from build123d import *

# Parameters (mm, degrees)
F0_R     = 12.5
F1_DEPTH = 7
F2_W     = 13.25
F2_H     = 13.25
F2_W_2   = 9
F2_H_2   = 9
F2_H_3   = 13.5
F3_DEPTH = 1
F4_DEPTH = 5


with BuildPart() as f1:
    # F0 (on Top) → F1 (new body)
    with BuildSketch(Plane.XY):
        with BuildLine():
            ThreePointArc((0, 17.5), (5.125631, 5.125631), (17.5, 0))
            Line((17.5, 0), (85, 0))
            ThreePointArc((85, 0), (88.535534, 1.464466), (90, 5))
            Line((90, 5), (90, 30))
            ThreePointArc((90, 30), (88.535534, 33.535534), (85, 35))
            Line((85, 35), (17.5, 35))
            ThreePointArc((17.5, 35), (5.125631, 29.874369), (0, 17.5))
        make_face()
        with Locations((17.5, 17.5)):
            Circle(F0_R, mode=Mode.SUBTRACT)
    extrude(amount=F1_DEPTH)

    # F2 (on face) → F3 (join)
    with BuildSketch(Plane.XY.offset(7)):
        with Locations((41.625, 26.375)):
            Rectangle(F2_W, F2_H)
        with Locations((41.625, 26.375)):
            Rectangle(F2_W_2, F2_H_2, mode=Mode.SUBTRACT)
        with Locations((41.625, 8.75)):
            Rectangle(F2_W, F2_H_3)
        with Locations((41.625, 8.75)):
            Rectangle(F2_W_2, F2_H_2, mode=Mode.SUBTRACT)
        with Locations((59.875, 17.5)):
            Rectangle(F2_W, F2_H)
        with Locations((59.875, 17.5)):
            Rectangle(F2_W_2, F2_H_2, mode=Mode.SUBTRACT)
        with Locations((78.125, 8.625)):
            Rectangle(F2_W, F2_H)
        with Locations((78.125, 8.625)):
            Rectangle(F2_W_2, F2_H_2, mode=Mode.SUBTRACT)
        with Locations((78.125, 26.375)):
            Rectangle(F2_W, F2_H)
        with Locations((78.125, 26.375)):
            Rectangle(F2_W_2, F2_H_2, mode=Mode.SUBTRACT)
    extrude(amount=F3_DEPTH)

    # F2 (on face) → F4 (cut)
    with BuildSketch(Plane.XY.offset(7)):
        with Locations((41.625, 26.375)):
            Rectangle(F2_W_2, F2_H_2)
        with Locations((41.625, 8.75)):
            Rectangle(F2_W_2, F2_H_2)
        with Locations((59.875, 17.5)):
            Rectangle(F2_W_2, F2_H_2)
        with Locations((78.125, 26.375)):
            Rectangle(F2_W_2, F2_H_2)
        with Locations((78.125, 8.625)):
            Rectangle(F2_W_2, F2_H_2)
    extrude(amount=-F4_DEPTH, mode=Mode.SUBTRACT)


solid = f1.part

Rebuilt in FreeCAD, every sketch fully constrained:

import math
import FreeCAD as App
import Part
import Sketcher
from FreeCAD import Vector
Q = App.Units.Quantity

doc = App.newDocument("Part")
params = doc.addObject("Spreadsheet::Sheet", "Params")
for row, (alias, value) in enumerate([
    ("sketch1_diameter", "25 mm"),
    ("sketch1_radius", "5 mm"),
    ("sketch1_radius2", "17.499999 mm"),
    ("sketch1_width", "67.5 mm"),
    ("pad1_length", "7 mm"),
    ("sketch2_width", "9 mm"),
    ("sketch2_height", "13.5 mm"),
    ("sketch2_width2", "13.25 mm"),
    ("pad2_length", "1 mm"),
    ("sketch3_width", "9 mm"),
    ("pocket1_length", "5 mm"),
], start=1):
    params.set(f"A{row}", alias)
    params.set(f"B{row}", "=" + value)
    params.setAlias(f"B{row}", alias)

body = doc.addObject("PartDesign::Body", "Body")

# Sketch on XY plane
sketch1 = body.newObject("Sketcher::SketchObject", "Sketch")
sketch1.AttachmentSupport = (doc.getObject("XY_Plane"), [""])
sketch1.MapMode = "FlatFace"
sketch1.addGeometry(Part.ArcOfCircle(Part.Circle(Vector(17.499999, 17.499999, 0), Vector(0, 0, 1), 17.499999), math.radians(179.999996), math.radians(270.000004)), False)
sketch1.addGeometry(Part.LineSegment(Vector(17.5, 0, 0), Vector(85, 0, 0)), False)
sketch1.addGeometry(Part.ArcOfCircle(Part.Circle(Vector(85, 5, 0), Vector(0, 0, 1), 5), math.radians(-90.000004), math.radians(0.000004)), False)
sketch1.addGeometry(Part.LineSegment(Vector(90, 5, 0), Vector(90, 30, 0)), False)
sketch1.addGeometry(Part.ArcOfCircle(Part.Circle(Vector(85, 30, 0), Vector(0, 0, 1), 5), math.radians(-0.000004), math.radians(90.000004)), False)
sketch1.addGeometry(Part.LineSegment(Vector(85, 35, 0), Vector(17.5, 35, 0)), False)
sketch1.addGeometry(Part.ArcOfCircle(Part.Circle(Vector(17.499999, 17.500001, 0), Vector(0, 0, 1), 17.499999), math.radians(89.999996), math.radians(180.000004)), False)
sketch1.addGeometry(Part.Circle(Vector(17.5, 17.5, 0), Vector(0, 0, 1), 12.5), False)
sketch1.addConstraint(Sketcher.Constraint("Tangent", 0, 2, 1, 1))
sketch1.addConstraint(Sketcher.Constraint("Tangent", 1, 2, 2, 1))
sketch1.addConstraint(Sketcher.Constraint("Tangent", 2, 2, 3, 1))
sketch1.addConstraint(Sketcher.Constraint("Tangent", 3, 2, 4, 1))
sketch1.addConstraint(Sketcher.Constraint("Tangent", 4, 2, 5, 1))
sketch1.addConstraint(Sketcher.Constraint("Tangent", 5, 2, 6, 1))
sketch1.addConstraint(Sketcher.Constraint("Tangent", 6, 2, 0, 1))
sketch1.addConstraint(Sketcher.Constraint("Horizontal", 1))
sketch1.addConstraint(Sketcher.Constraint("Vertical", 3))
sketch1.addConstraint(Sketcher.Constraint("Horizontal", 5))
sketch1.addConstraint(Sketcher.Constraint("Coincident", 7, 3, 0, 3))
sketch1.addConstraint(Sketcher.Constraint("Equal", 2, 4))
sketch1.addConstraint(Sketcher.Constraint("Equal", 0, 6))
sketch1.addConstraint(Sketcher.Constraint("PointOnObject", 0, 2, -1))
sketch1.addConstraint(Sketcher.Constraint("PointOnObject", 6, 2, -2))
sketch1.addConstraint(Sketcher.Constraint("Horizontal", 7, 3, 6, 2))
sketch1.addConstraint(Sketcher.Constraint("Diameter", 7, Q("25 mm")))
sketch1.addConstraint(Sketcher.Constraint("Radius", 2, Q("5 mm")))
sketch1.addConstraint(Sketcher.Constraint("Radius", 0, Q("17.499999 mm")))
sketch1.addConstraint(Sketcher.Constraint("DistanceX", 1, 1, 1, 2, Q("67.5 mm")))
sketch1.setExpression("Constraints[16]", "Params.sketch1_diameter")
sketch1.setExpression("Constraints[17]", "Params.sketch1_radius")
sketch1.setExpression("Constraints[18]", "Params.sketch1_radius2")
sketch1.setExpression("Constraints[19]", "Params.sketch1_width")
pad1 = body.newObject("PartDesign::Pad", "Pad")
pad1.Profile = sketch1
pad1.setExpression("Length", "Params.pad1_length")

# Sketch on XY plane
sketch2 = body.newObject("Sketcher::SketchObject", "Sketch001")
sketch2.AttachmentSupport = (doc.getObject("XY_Plane"), [""])
sketch2.MapMode = "FlatFace"
sketch2.AttachmentOffset = App.Placement(Vector(0, 0, 7), App.Rotation())
sketch2.addGeometry(Part.LineSegment(Vector(35, 33, 0), Vector(35, 19.75, 0)), False)
sketch2.addGeometry(Part.LineSegment(Vector(35, 19.75, 0), Vector(48.25, 19.75, 0)), False)
sketch2.addGeometry(Part.LineSegment(Vector(48.25, 19.75, 0), Vector(48.25, 33, 0)), False)
sketch2.addGeometry(Part.LineSegment(Vector(48.25, 33, 0), Vector(35, 33, 0)), False)
sketch2.addGeometry(Part.LineSegment(Vector(46.125, 21.875, 0), Vector(37.125, 21.875, 0)), False)
sketch2.addGeometry(Part.LineSegment(Vector(37.125, 21.875, 0), Vector(37.125, 30.875, 0)), False)
sketch2.addGeometry(Part.LineSegment(Vector(37.125, 30.875, 0), Vector(46.125, 30.875, 0)), False)
sketch2.addGeometry(Part.LineSegment(Vector(46.125, 30.875, 0), Vector(46.125, 21.875, 0)), False)
sketch2.addGeometry(Part.LineSegment(Vector(35, 15.5, 0), Vector(35, 2, 0)), False)
sketch2.addGeometry(Part.LineSegment(Vector(35, 2, 0), Vector(48.25, 2, 0)), False)
sketch2.addGeometry(Part.LineSegment(Vector(48.25, 2, 0), Vector(48.25, 15.5, 0)), False)
sketch2.addGeometry(Part.LineSegment(Vector(48.25, 15.5, 0), Vector(35, 15.5, 0)), False)
sketch2.addGeometry(Part.LineSegment(Vector(46.125, 4.25, 0), Vector(37.125, 4.25, 0)), False)
sketch2.addGeometry(Part.LineSegment(Vector(37.125, 4.25, 0), Vector(37.125, 13.25, 0)), False)
sketch2.addGeometry(Part.LineSegment(Vector(37.125, 13.25, 0), Vector(46.125, 13.25, 0)), False)
sketch2.addGeometry(Part.LineSegment(Vector(46.125, 13.25, 0), Vector(46.125, 4.25, 0)), False)
sketch2.addGeometry(Part.LineSegment(Vector(53.25, 24.125, 0), Vector(53.25, 10.875, 0)), False)
sketch2.addGeometry(Part.LineSegment(Vector(53.25, 10.875, 0), Vector(66.5, 10.875, 0)), False)
sketch2.addGeometry(Part.LineSegment(Vector(66.5, 10.875, 0), Vector(66.5, 24.125, 0)), False)
sketch2.addGeometry(Part.LineSegment(Vector(66.5, 24.125, 0), Vector(53.25, 24.125, 0)), False)
sketch2.addGeometry(Part.LineSegment(Vector(64.375, 13, 0), Vector(55.375, 13, 0)), False)
sketch2.addGeometry(Part.LineSegment(Vector(55.375, 13, 0), Vector(55.375, 22, 0)), False)
sketch2.addGeometry(Part.LineSegment(Vector(55.375, 22, 0), Vector(64.375, 22, 0)), False)
sketch2.addGeometry(Part.LineSegment(Vector(64.375, 22, 0), Vector(64.375, 13, 0)), False)
sketch2.addGeometry(Part.LineSegment(Vector(71.5, 15.25, 0), Vector(71.5, 2, 0)), False)
sketch2.addGeometry(Part.LineSegment(Vector(71.5, 2, 0), Vector(84.75, 2, 0)), False)
sketch2.addGeometry(Part.LineSegment(Vector(84.75, 2, 0), Vector(84.75, 15.25, 0)), False)
sketch2.addGeometry(Part.LineSegment(Vector(84.75, 15.25, 0), Vector(71.5, 15.25, 0)), False)
sketch2.addGeometry(Part.LineSegment(Vector(82.625, 4.125, 0), Vector(73.625, 4.125, 0)), False)
sketch2.addGeometry(Part.LineSegment(Vector(73.625, 4.125, 0), Vector(73.625, 13.125, 0)), False)
sketch2.addGeometry(Part.LineSegment(Vector(73.625, 13.125, 0), Vector(82.625, 13.125, 0)), False)
sketch2.addGeometry(Part.LineSegment(Vector(82.625, 13.125, 0), Vector(82.625, 4.125, 0)), False)
sketch2.addGeometry(Part.LineSegment(Vector(71.5, 33, 0), Vector(71.5, 19.75, 0)), False)
sketch2.addGeometry(Part.LineSegment(Vector(71.5, 19.75, 0), Vector(84.75, 19.75, 0)), False)
sketch2.addGeometry(Part.LineSegment(Vector(84.75, 19.75, 0), Vector(84.75, 33, 0)), False)
sketch2.addGeometry(Part.LineSegment(Vector(84.75, 33, 0), Vector(71.5, 33, 0)), False)
sketch2.addGeometry(Part.LineSegment(Vector(82.625, 21.875, 0), Vector(73.625, 21.875, 0)), False)
sketch2.addGeometry(Part.LineSegment(Vector(73.625, 21.875, 0), Vector(73.625, 30.875, 0)), False)
sketch2.addGeometry(Part.LineSegment(Vector(73.625, 30.875, 0), Vector(82.625, 30.875, 0)), False)
sketch2.addGeometry(Part.LineSegment(Vector(82.625, 30.875, 0), Vector(82.625, 21.875, 0)), False)
sketch2.addConstraint(Sketcher.Constraint("Coincident", 0, 2, 1, 1))
sketch2.addConstraint(Sketcher.Constraint("Coincident", 1, 2, 2, 1))
sketch2.addConstraint(Sketcher.Constraint("Coincident", 2, 2, 3, 1))
sketch2.addConstraint(Sketcher.Constraint("Coincident", 3, 2, 0, 1))
sketch2.addConstraint(Sketcher.Constraint("Coincident", 4, 2, 5, 1))
sketch2.addConstraint(Sketcher.Constraint("Coincident", 5, 2, 6, 1))
sketch2.addConstraint(Sketcher.Constraint("Coincident", 6, 2, 7, 1))
sketch2.addConstraint(Sketcher.Constraint("Coincident", 7, 2, 4, 1))
sketch2.addConstraint(Sketcher.Constraint("Coincident", 8, 2, 9, 1))
sketch2.addConstraint(Sketcher.Constraint("Coincident", 9, 2, 10, 1))
sketch2.addConstraint(Sketcher.Constraint("Coincident", 10, 2, 11, 1))
sketch2.addConstraint(Sketcher.Constraint("Coincident", 11, 2, 8, 1))
sketch2.addConstraint(Sketcher.Constraint("Coincident", 12, 2, 13, 1))
sketch2.addConstraint(Sketcher.Constraint("Coincident", 13, 2, 14, 1))
sketch2.addConstraint(Sketcher.Constraint("Coincident", 14, 2, 15, 1))
sketch2.addConstraint(Sketcher.Constraint("Coincident", 15, 2, 12, 1))
sketch2.addConstraint(Sketcher.Constraint("Coincident", 16, 2, 17, 1))
sketch2.addConstraint(Sketcher.Constraint("Coincident", 17, 2, 18, 1))
sketch2.addConstraint(Sketcher.Constraint("Coincident", 18, 2, 19, 1))
sketch2.addConstraint(Sketcher.Constraint("Coincident", 19, 2, 16, 1))
sketch2.addConstraint(Sketcher.Constraint("Coincident", 20, 2, 21, 1))
sketch2.addConstraint(Sketcher.Constraint("Coincident", 21, 2, 22, 1))
sketch2.addConstraint(Sketcher.Constraint("Coincident", 22, 2, 23, 1))
sketch2.addConstraint(Sketcher.Constraint("Coincident", 23, 2, 20, 1))
sketch2.addConstraint(Sketcher.Constraint("Coincident", 24, 2, 25, 1))
sketch2.addConstraint(Sketcher.Constraint("Coincident", 25, 2, 26, 1))
sketch2.addConstraint(Sketcher.Constraint("Coincident", 26, 2, 27, 1))
sketch2.addConstraint(Sketcher.Constraint("Coincident", 27, 2, 24, 1))
sketch2.addConstraint(Sketcher.Constraint("Coincident", 28, 2, 29, 1))
sketch2.addConstraint(Sketcher.Constraint("Coincident", 29, 2, 30, 1))
sketch2.addConstraint(Sketcher.Constraint("Coincident", 30, 2, 31, 1))
sketch2.addConstraint(Sketcher.Constraint("Coincident", 31, 2, 28, 1))
sketch2.addConstraint(Sketcher.Constraint("Coincident", 32, 2, 33, 1))
sketch2.addConstraint(Sketcher.Constraint("Coincident", 33, 2, 34, 1))
sketch2.addConstraint(Sketcher.Constraint("Coincident", 34, 2, 35, 1))
sketch2.addConstraint(Sketcher.Constraint("Coincident", 35, 2, 32, 1))
sketch2.addConstraint(Sketcher.Constraint("Coincident", 36, 2, 37, 1))
sketch2.addConstraint(Sketcher.Constraint("Coincident", 37, 2, 38, 1))
sketch2.addConstraint(Sketcher.Constraint("Coincident", 38, 2, 39, 1))
sketch2.addConstraint(Sketcher.Constraint("Coincident", 39, 2, 36, 1))
sketch2.addConstraint(Sketcher.Constraint("Vertical", 0))
sketch2.addConstraint(Sketcher.Constraint("Horizontal", 1))
sketch2.addConstraint(Sketcher.Constraint("Vertical", 2))
sketch2.addConstraint(Sketcher.Constraint("Horizontal", 3))
sketch2.addConstraint(Sketcher.Constraint("Horizontal", 4))
sketch2.addConstraint(Sketcher.Constraint("Vertical", 5))
sketch2.addConstraint(Sketcher.Constraint("Horizontal", 6))
sketch2.addConstraint(Sketcher.Constraint("Vertical", 7))
sketch2.addConstraint(Sketcher.Constraint("Vertical", 8))
sketch2.addConstraint(Sketcher.Constraint("Horizontal", 9))
sketch2.addConstraint(Sketcher.Constraint("Vertical", 10))
sketch2.addConstraint(Sketcher.Constraint("Horizontal", 11))
sketch2.addConstraint(Sketcher.Constraint("Horizontal", 12))
sketch2.addConstraint(Sketcher.Constraint("Vertical", 13))
sketch2.addConstraint(Sketcher.Constraint("Horizontal", 14))
sketch2.addConstraint(Sketcher.Constraint("Vertical", 15))
sketch2.addConstraint(Sketcher.Constraint("Vertical", 16))
sketch2.addConstraint(Sketcher.Constraint("Horizontal", 17))
sketch2.addConstraint(Sketcher.Constraint("Vertical", 18))
sketch2.addConstraint(Sketcher.Constraint("Horizontal", 19))
sketch2.addConstraint(Sketcher.Constraint("Horizontal", 20))
sketch2.addConstraint(Sketcher.Constraint("Vertical", 21))
sketch2.addConstraint(Sketcher.Constraint("Horizontal", 22))
sketch2.addConstraint(Sketcher.Constraint("Vertical", 23))
sketch2.addConstraint(Sketcher.Constraint("Vertical", 24))
sketch2.addConstraint(Sketcher.Constraint("Horizontal", 25))
sketch2.addConstraint(Sketcher.Constraint("Vertical", 26))
sketch2.addConstraint(Sketcher.Constraint("Horizontal", 27))
sketch2.addConstraint(Sketcher.Constraint("Horizontal", 28))
sketch2.addConstraint(Sketcher.Constraint("Vertical", 29))
sketch2.addConstraint(Sketcher.Constraint("Horizontal", 30))
sketch2.addConstraint(Sketcher.Constraint("Vertical", 31))
sketch2.addConstraint(Sketcher.Constraint("Vertical", 32))
sketch2.addConstraint(Sketcher.Constraint("Horizontal", 33))
sketch2.addConstraint(Sketcher.Constraint("Vertical", 34))
sketch2.addConstraint(Sketcher.Constraint("Horizontal", 35))
sketch2.addConstraint(Sketcher.Constraint("Horizontal", 36))
sketch2.addConstraint(Sketcher.Constraint("Vertical", 37))
sketch2.addConstraint(Sketcher.Constraint("Horizontal", 38))
sketch2.addConstraint(Sketcher.Constraint("Vertical", 39))
sketch2.addConstraint(Sketcher.Constraint("Horizontal", 9, 2, 24, 2))
sketch2.addConstraint(Sketcher.Constraint("Horizontal", 1, 2, 32, 2))
sketch2.addConstraint(Sketcher.Constraint("Horizontal", 3, 2, 34, 2))
sketch2.addConstraint(Sketcher.Constraint("Horizontal", 7, 2, 36, 2))
sketch2.addConstraint(Sketcher.Constraint("Horizontal", 6, 2, 37, 2))
sketch2.addConstraint(Sketcher.Constraint("Vertical", 3, 2, 8, 2))
sketch2.addConstraint(Sketcher.Constraint("Vertical", 2, 2, 9, 2))
sketch2.addConstraint(Sketcher.Constraint("Vertical", 5, 2, 12, 2))
sketch2.addConstraint(Sketcher.Constraint("Vertical", 7, 2, 14, 2))
sketch2.addConstraint(Sketcher.Constraint("Vertical", 27, 2, 32, 2))
sketch2.addConstraint(Sketcher.Constraint("Vertical", 26, 2, 33, 2))
sketch2.addConstraint(Sketcher.Constraint("Vertical", 29, 2, 36, 2))
sketch2.addConstraint(Sketcher.Constraint("Vertical", 31, 2, 38, 2))
sketch2.addConstraint(Sketcher.Constraint("Equal", 11, 17))
sketch2.addConstraint(Sketcher.Constraint("Equal", 14, 20))
sketch2.addConstraint(Sketcher.Constraint("Equal", 19, 25))
sketch2.addConstraint(Sketcher.Constraint("Equal", 22, 28))
sketch2.addConstraint(Sketcher.Constraint("Equal", 35, 0))
sketch2.addConstraint(Sketcher.Constraint("Equal", 38, 5))
sketch2.addConstraint(Sketcher.Constraint("Equal", 7, 13))
sketch2.addConstraint(Sketcher.Constraint("Equal", 2, 16))
sketch2.addConstraint(Sketcher.Constraint("Equal", 15, 21))
sketch2.addConstraint(Sketcher.Constraint("Equal", 18, 24))
sketch2.addConstraint(Sketcher.Constraint("Equal", 23, 29))
sketch2.addConstraint(Sketcher.Constraint("DistanceX", 4, 2, 4, 1, Q("9 mm")))
sketch2.addConstraint(Sketcher.Constraint("DistanceY", 8, 2, 8, 1, Q("13.5 mm")))
sketch2.addConstraint(Sketcher.Constraint("DistanceX", -1, 1, 0, 2, Q("35 mm")))
sketch2.addConstraint(Sketcher.Constraint("DistanceY", -1, 1, 2, 2, Q("33 mm")))
sketch2.addConstraint(Sketcher.Constraint("DistanceY", -1, 1, 8, 2, Q("2 mm")))
sketch2.addConstraint(Sketcher.Constraint("DistanceY", -1, 1, 20, 2, Q("13 mm")))
sketch2.addConstraint(Sketcher.Constraint("DistanceX", 10, 2, 16, 2, Q("5 mm")))
sketch2.addConstraint(Sketcher.Constraint("DistanceX", 17, 2, 24, 2, Q("5 mm")))
sketch2.addConstraint(Sketcher.Constraint("DistanceX", 1, 1, 1, 2, Q("13.25 mm")))
sketch2.addConstraint(Sketcher.Constraint("DistanceY", 12, 2, 0, 2, Q("15.5 mm")))
sketch2.addConstraint(Sketcher.Constraint("DistanceY", 7, 2, 19, 2, Q("2.25 mm")))
sketch2.addConstraint(Sketcher.Constraint("DistanceX", 14, 2, 20, 2, Q("9.25 mm")))
sketch2.addConstraint(Sketcher.Constraint("DistanceY", 28, 2, 17, 2, Q("6.75 mm")))
sketch2.addConstraint(Sketcher.Constraint("DistanceX", 23, 2, 28, 2, Q("9.25 mm")))
sketch2.addConstraint(Sketcher.Constraint("DistanceX", -1, 1, 4, 2, Q("37.125 mm")))
sketch2.addConstraint(Sketcher.Constraint("DistanceY", -1, 1, 4, 2, Q("21.875 mm")))
sketch2.setExpression("Constraints[104]", "Params.sketch2_width")
sketch2.setExpression("Constraints[105]", "Params.sketch2_height")
sketch2.setExpression("Constraints[112]", "Params.sketch2_width2")
pad2 = body.newObject("PartDesign::Pad", "Pad001")
pad2.Profile = sketch2
pad2.setExpression("Length", "Params.pad2_length")

# Sketch on XY plane
sketch3 = body.newObject("Sketcher::SketchObject", "Sketch002")
sketch3.AttachmentSupport = (doc.getObject("XY_Plane"), [""])
sketch3.MapMode = "FlatFace"
sketch3.AttachmentOffset = App.Placement(Vector(0, 0, 7), App.Rotation())
sketch3.addGeometry(Part.LineSegment(Vector(37.125, 30.875, 0), Vector(37.125, 21.875, 0)), False)
sketch3.addGeometry(Part.LineSegment(Vector(37.125, 21.875, 0), Vector(46.125, 21.875, 0)), False)
sketch3.addGeometry(Part.LineSegment(Vector(46.125, 21.875, 0), Vector(46.125, 30.875, 0)), False)
sketch3.addGeometry(Part.LineSegment(Vector(46.125, 30.875, 0), Vector(37.125, 30.875, 0)), False)
sketch3.addGeometry(Part.LineSegment(Vector(37.125, 13.25, 0), Vector(37.125, 4.25, 0)), False)
sketch3.addGeometry(Part.LineSegment(Vector(37.125, 4.25, 0), Vector(46.125, 4.25, 0)), False)
sketch3.addGeometry(Part.LineSegment(Vector(46.125, 4.25, 0), Vector(46.125, 13.25, 0)), False)
sketch3.addGeometry(Part.LineSegment(Vector(46.125, 13.25, 0), Vector(37.125, 13.25, 0)), False)
sketch3.addGeometry(Part.LineSegment(Vector(55.375, 22, 0), Vector(55.375, 13, 0)), False)
sketch3.addGeometry(Part.LineSegment(Vector(55.375, 13, 0), Vector(64.375, 13, 0)), False)
sketch3.addGeometry(Part.LineSegment(Vector(64.375, 13, 0), Vector(64.375, 22, 0)), False)
sketch3.addGeometry(Part.LineSegment(Vector(64.375, 22, 0), Vector(55.375, 22, 0)), False)
sketch3.addGeometry(Part.LineSegment(Vector(73.625, 30.875, 0), Vector(73.625, 21.875, 0)), False)
sketch3.addGeometry(Part.LineSegment(Vector(73.625, 21.875, 0), Vector(82.625, 21.875, 0)), False)
sketch3.addGeometry(Part.LineSegment(Vector(82.625, 21.875, 0), Vector(82.625, 30.875, 0)), False)
sketch3.addGeometry(Part.LineSegment(Vector(82.625, 30.875, 0), Vector(73.625, 30.875, 0)), False)
sketch3.addGeometry(Part.LineSegment(Vector(73.625, 13.125, 0), Vector(73.625, 4.125, 0)), False)
sketch3.addGeometry(Part.LineSegment(Vector(73.625, 4.125, 0), Vector(82.625, 4.125, 0)), False)
sketch3.addGeometry(Part.LineSegment(Vector(82.625, 4.125, 0), Vector(82.625, 13.125, 0)), False)
sketch3.addGeometry(Part.LineSegment(Vector(82.625, 13.125, 0), Vector(73.625, 13.125, 0)), False)
sketch3.addConstraint(Sketcher.Constraint("Coincident", 0, 2, 1, 1))
sketch3.addConstraint(Sketcher.Constraint("Coincident", 1, 2, 2, 1))
sketch3.addConstraint(Sketcher.Constraint("Coincident", 2, 2, 3, 1))
sketch3.addConstraint(Sketcher.Constraint("Coincident", 3, 2, 0, 1))
sketch3.addConstraint(Sketcher.Constraint("Coincident", 4, 2, 5, 1))
sketch3.addConstraint(Sketcher.Constraint("Coincident", 5, 2, 6, 1))
sketch3.addConstraint(Sketcher.Constraint("Coincident", 6, 2, 7, 1))
sketch3.addConstraint(Sketcher.Constraint("Coincident", 7, 2, 4, 1))
sketch3.addConstraint(Sketcher.Constraint("Coincident", 8, 2, 9, 1))
sketch3.addConstraint(Sketcher.Constraint("Coincident", 9, 2, 10, 1))
sketch3.addConstraint(Sketcher.Constraint("Coincident", 10, 2, 11, 1))
sketch3.addConstraint(Sketcher.Constraint("Coincident", 11, 2, 8, 1))
sketch3.addConstraint(Sketcher.Constraint("Coincident", 12, 2, 13, 1))
sketch3.addConstraint(Sketcher.Constraint("Coincident", 13, 2, 14, 1))
sketch3.addConstraint(Sketcher.Constraint("Coincident", 14, 2, 15, 1))
sketch3.addConstraint(Sketcher.Constraint("Coincident", 15, 2, 12, 1))
sketch3.addConstraint(Sketcher.Constraint("Coincident", 16, 2, 17, 1))
sketch3.addConstraint(Sketcher.Constraint("Coincident", 17, 2, 18, 1))
sketch3.addConstraint(Sketcher.Constraint("Coincident", 18, 2, 19, 1))
sketch3.addConstraint(Sketcher.Constraint("Coincident", 19, 2, 16, 1))
sketch3.addConstraint(Sketcher.Constraint("Vertical", 0))
sketch3.addConstraint(Sketcher.Constraint("Horizontal", 1))
sketch3.addConstraint(Sketcher.Constraint("Vertical", 2))
sketch3.addConstraint(Sketcher.Constraint("Horizontal", 3))
sketch3.addConstraint(Sketcher.Constraint("Vertical", 4))
sketch3.addConstraint(Sketcher.Constraint("Horizontal", 5))
sketch3.addConstraint(Sketcher.Constraint("Vertical", 6))
sketch3.addConstraint(Sketcher.Constraint("Horizontal", 7))
sketch3.addConstraint(Sketcher.Constraint("Vertical", 8))
sketch3.addConstraint(Sketcher.Constraint("Horizontal", 9))
sketch3.addConstraint(Sketcher.Constraint("Vertical", 10))
sketch3.addConstraint(Sketcher.Constraint("Horizontal", 11))
sketch3.addConstraint(Sketcher.Constraint("Vertical", 12))
sketch3.addConstraint(Sketcher.Constraint("Horizontal", 13))
sketch3.addConstraint(Sketcher.Constraint("Vertical", 14))
sketch3.addConstraint(Sketcher.Constraint("Horizontal", 15))
sketch3.addConstraint(Sketcher.Constraint("Vertical", 16))
sketch3.addConstraint(Sketcher.Constraint("Horizontal", 17))
sketch3.addConstraint(Sketcher.Constraint("Vertical", 18))
sketch3.addConstraint(Sketcher.Constraint("Horizontal", 19))
sketch3.addConstraint(Sketcher.Constraint("Horizontal", 1, 2, 12, 2))
sketch3.addConstraint(Sketcher.Constraint("Horizontal", 3, 2, 14, 2))
sketch3.addConstraint(Sketcher.Constraint("Vertical", 3, 2, 4, 2))
sketch3.addConstraint(Sketcher.Constraint("Vertical", 2, 2, 5, 2))
sketch3.addConstraint(Sketcher.Constraint("Vertical", 15, 2, 16, 2))
sketch3.addConstraint(Sketcher.Constraint("Vertical", 14, 2, 17, 2))
sketch3.addConstraint(Sketcher.Constraint("Equal", 7, 9))
sketch3.addConstraint(Sketcher.Constraint("Equal", 11, 13))
sketch3.addConstraint(Sketcher.Constraint("Equal", 19, 0))
sketch3.addConstraint(Sketcher.Constraint("Equal", 2, 4))
sketch3.addConstraint(Sketcher.Constraint("Equal", 6, 8))
sketch3.addConstraint(Sketcher.Constraint("Equal", 14, 16))
sketch3.addConstraint(Sketcher.Constraint("DistanceX", 1, 1, 1, 2, Q("9 mm")))
sketch3.addConstraint(Sketcher.Constraint("DistanceY", -1, 1, 8, 2, Q("13 mm")))
sketch3.addConstraint(Sketcher.Constraint("DistanceX", 1, 2, 12, 2, Q("27.5 mm")))
sketch3.addConstraint(Sketcher.Constraint("DistanceY", -1, 1, 4, 2, Q("4.25 mm")))
sketch3.addConstraint(Sketcher.Constraint("DistanceX", 6, 2, 8, 2, Q("9.25 mm")))
sketch3.addConstraint(Sketcher.Constraint("DistanceY", 16, 2, 12, 2, Q("17.75 mm")))
sketch3.addConstraint(Sketcher.Constraint("DistanceX", -1, 1, 0, 2, Q("37.125 mm")))
sketch3.addConstraint(Sketcher.Constraint("DistanceY", -1, 1, 0, 2, Q("21.875 mm")))
sketch3.setExpression("Constraints[52]", "Params.sketch3_width")
pocket1 = body.newObject("PartDesign::Pocket", "Pocket")
pocket1.Profile = sketch3
pocket1.setExpression("Length", "Params.pocket1_length")

doc.recompute()
